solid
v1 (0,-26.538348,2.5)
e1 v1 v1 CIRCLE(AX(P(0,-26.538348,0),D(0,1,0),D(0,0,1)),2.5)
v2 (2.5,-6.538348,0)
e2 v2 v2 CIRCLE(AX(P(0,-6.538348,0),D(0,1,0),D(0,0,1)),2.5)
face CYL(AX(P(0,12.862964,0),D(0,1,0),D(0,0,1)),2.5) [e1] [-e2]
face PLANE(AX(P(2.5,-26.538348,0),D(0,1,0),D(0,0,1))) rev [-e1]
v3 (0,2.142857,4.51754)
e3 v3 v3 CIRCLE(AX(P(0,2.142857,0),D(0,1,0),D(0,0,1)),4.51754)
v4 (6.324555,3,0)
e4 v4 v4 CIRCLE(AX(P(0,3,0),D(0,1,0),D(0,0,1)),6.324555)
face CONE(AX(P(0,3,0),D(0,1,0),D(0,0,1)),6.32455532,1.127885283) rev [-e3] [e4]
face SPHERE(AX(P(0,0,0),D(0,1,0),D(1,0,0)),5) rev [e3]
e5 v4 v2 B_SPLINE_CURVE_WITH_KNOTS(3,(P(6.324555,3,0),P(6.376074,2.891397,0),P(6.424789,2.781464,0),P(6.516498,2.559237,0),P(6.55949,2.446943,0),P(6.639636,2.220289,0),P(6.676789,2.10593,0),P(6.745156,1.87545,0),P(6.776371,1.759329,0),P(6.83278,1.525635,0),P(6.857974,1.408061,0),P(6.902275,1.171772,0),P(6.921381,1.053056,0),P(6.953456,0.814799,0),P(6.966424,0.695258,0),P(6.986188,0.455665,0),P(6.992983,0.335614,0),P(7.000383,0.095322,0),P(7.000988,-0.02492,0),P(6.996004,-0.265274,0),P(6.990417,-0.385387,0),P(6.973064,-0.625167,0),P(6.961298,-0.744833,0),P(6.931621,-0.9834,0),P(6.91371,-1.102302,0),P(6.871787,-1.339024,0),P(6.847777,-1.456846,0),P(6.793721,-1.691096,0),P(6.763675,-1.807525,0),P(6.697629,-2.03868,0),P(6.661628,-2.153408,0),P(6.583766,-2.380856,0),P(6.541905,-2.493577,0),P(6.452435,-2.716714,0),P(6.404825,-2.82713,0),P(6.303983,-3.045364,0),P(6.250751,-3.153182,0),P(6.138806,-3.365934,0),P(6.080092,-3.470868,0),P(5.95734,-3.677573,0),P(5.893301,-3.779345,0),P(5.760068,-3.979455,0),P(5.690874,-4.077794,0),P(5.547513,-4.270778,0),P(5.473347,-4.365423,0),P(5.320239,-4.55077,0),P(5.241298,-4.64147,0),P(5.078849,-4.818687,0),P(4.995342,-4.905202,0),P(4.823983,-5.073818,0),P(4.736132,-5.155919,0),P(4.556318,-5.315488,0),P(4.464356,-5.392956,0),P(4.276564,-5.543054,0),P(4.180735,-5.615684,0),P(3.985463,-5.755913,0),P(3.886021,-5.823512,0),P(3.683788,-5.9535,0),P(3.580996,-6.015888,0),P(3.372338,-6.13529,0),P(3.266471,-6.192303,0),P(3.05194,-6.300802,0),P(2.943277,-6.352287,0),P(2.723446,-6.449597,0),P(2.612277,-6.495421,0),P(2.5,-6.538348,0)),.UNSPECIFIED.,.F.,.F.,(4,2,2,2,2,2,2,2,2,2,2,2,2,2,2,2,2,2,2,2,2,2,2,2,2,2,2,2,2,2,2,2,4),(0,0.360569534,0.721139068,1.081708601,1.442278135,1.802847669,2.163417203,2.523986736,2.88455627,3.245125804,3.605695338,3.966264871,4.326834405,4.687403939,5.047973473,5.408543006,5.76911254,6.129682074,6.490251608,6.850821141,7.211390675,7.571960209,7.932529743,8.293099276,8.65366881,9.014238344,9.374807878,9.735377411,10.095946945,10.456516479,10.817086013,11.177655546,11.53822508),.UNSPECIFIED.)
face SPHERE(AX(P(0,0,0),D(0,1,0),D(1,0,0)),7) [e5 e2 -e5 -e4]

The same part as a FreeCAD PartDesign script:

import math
import FreeCAD as App
import Part
import Sketcher
from FreeCAD import Vector

doc = App.newDocument("Part")
body = doc.addObject("PartDesign::Body", "Body")

# Sketch on XY plane
sketch1 = body.newObject("Sketcher::SketchObject", "Sketch")
sketch1.AttachmentSupport = (doc.getObject("XY_Plane"), [""])
sketch1.MapMode = "FlatFace"
sketch1.addGeometry([
    Part.LineSegment(Vector(2.5, -26.538348, 0), Vector(2.5, -6.538348, 0)),  # 0
    Part.ArcOfCircle(Part.Circle(Vector(0, 0, 0), Vector(0, 0, 1), 7), math.radians(-69.075168), math.radians(25.376934)),  # 1
    Part.LineSegment(Vector(6.324555, 3, 0), Vector(4.51754, 2.142857, 0)),  # 2
    Part.ArcOfCircle(Part.Circle(Vector(0, 0, 0), Vector(0, 0, 1), 5), math.radians(-90), math.radians(25.376934)),  # 3
    Part.LineSegment(Vector(0, -5, 0), Vector(0, -26.538348, 0)),  # 4
    Part.LineSegment(Vector(0, -26.538348, 0), Vector(2.5, -26.538348, 0)),  # 5
], False)
sketch1.addConstraint([
    Sketcher.Constraint("Coincident", 0, 2, 1, 1),
    Sketcher.Constraint("Coincident", 1, 2, 2, 1),
    Sketcher.Constraint("Coincident", 2, 2, 3, 2),
    Sketcher.Constraint("Coincident", 3, 1, 4, 1),
    Sketcher.Constraint("Coincident", 4, 2, 5, 1),
    Sketcher.Constraint("Coincident", 5, 2, 0, 1),
    Sketcher.Constraint("Vertical", 0),
    Sketcher.Constraint("Vertical", 4),
    Sketcher.Constraint("Horizontal", 5),
    Sketcher.Constraint("Coincident", 1, 3, -1, 1),
    Sketcher.Constraint("Coincident", 3, 3, -1, 1),
    Sketcher.Constraint("PointOnObject", 3, 1, -2),
    Sketcher.Constraint("Radius", 1, 7.0),
    Sketcher.Constraint("Radius", 3, 5.0),
    Sketcher.Constraint("DistanceY", 0, 1, 0, 2, 20.0),
    Sketcher.Constraint("DistanceX", 5, 1, 5, 2, 2.5),
    Sketcher.Constraint("DistanceY", -1, 1, 1, 2, 3.0),
    Sketcher.Constraint("DistanceX", -1, 1, 2, 2, 4.51754),
])
revolution = body.newObject("PartDesign::Revolution", "Revolution")
revolution.Profile = sketch1
revolution.ReferenceAxis = (sketch1, ["V_Axis"])
revolution.Angle = 360

doc.recompute()
